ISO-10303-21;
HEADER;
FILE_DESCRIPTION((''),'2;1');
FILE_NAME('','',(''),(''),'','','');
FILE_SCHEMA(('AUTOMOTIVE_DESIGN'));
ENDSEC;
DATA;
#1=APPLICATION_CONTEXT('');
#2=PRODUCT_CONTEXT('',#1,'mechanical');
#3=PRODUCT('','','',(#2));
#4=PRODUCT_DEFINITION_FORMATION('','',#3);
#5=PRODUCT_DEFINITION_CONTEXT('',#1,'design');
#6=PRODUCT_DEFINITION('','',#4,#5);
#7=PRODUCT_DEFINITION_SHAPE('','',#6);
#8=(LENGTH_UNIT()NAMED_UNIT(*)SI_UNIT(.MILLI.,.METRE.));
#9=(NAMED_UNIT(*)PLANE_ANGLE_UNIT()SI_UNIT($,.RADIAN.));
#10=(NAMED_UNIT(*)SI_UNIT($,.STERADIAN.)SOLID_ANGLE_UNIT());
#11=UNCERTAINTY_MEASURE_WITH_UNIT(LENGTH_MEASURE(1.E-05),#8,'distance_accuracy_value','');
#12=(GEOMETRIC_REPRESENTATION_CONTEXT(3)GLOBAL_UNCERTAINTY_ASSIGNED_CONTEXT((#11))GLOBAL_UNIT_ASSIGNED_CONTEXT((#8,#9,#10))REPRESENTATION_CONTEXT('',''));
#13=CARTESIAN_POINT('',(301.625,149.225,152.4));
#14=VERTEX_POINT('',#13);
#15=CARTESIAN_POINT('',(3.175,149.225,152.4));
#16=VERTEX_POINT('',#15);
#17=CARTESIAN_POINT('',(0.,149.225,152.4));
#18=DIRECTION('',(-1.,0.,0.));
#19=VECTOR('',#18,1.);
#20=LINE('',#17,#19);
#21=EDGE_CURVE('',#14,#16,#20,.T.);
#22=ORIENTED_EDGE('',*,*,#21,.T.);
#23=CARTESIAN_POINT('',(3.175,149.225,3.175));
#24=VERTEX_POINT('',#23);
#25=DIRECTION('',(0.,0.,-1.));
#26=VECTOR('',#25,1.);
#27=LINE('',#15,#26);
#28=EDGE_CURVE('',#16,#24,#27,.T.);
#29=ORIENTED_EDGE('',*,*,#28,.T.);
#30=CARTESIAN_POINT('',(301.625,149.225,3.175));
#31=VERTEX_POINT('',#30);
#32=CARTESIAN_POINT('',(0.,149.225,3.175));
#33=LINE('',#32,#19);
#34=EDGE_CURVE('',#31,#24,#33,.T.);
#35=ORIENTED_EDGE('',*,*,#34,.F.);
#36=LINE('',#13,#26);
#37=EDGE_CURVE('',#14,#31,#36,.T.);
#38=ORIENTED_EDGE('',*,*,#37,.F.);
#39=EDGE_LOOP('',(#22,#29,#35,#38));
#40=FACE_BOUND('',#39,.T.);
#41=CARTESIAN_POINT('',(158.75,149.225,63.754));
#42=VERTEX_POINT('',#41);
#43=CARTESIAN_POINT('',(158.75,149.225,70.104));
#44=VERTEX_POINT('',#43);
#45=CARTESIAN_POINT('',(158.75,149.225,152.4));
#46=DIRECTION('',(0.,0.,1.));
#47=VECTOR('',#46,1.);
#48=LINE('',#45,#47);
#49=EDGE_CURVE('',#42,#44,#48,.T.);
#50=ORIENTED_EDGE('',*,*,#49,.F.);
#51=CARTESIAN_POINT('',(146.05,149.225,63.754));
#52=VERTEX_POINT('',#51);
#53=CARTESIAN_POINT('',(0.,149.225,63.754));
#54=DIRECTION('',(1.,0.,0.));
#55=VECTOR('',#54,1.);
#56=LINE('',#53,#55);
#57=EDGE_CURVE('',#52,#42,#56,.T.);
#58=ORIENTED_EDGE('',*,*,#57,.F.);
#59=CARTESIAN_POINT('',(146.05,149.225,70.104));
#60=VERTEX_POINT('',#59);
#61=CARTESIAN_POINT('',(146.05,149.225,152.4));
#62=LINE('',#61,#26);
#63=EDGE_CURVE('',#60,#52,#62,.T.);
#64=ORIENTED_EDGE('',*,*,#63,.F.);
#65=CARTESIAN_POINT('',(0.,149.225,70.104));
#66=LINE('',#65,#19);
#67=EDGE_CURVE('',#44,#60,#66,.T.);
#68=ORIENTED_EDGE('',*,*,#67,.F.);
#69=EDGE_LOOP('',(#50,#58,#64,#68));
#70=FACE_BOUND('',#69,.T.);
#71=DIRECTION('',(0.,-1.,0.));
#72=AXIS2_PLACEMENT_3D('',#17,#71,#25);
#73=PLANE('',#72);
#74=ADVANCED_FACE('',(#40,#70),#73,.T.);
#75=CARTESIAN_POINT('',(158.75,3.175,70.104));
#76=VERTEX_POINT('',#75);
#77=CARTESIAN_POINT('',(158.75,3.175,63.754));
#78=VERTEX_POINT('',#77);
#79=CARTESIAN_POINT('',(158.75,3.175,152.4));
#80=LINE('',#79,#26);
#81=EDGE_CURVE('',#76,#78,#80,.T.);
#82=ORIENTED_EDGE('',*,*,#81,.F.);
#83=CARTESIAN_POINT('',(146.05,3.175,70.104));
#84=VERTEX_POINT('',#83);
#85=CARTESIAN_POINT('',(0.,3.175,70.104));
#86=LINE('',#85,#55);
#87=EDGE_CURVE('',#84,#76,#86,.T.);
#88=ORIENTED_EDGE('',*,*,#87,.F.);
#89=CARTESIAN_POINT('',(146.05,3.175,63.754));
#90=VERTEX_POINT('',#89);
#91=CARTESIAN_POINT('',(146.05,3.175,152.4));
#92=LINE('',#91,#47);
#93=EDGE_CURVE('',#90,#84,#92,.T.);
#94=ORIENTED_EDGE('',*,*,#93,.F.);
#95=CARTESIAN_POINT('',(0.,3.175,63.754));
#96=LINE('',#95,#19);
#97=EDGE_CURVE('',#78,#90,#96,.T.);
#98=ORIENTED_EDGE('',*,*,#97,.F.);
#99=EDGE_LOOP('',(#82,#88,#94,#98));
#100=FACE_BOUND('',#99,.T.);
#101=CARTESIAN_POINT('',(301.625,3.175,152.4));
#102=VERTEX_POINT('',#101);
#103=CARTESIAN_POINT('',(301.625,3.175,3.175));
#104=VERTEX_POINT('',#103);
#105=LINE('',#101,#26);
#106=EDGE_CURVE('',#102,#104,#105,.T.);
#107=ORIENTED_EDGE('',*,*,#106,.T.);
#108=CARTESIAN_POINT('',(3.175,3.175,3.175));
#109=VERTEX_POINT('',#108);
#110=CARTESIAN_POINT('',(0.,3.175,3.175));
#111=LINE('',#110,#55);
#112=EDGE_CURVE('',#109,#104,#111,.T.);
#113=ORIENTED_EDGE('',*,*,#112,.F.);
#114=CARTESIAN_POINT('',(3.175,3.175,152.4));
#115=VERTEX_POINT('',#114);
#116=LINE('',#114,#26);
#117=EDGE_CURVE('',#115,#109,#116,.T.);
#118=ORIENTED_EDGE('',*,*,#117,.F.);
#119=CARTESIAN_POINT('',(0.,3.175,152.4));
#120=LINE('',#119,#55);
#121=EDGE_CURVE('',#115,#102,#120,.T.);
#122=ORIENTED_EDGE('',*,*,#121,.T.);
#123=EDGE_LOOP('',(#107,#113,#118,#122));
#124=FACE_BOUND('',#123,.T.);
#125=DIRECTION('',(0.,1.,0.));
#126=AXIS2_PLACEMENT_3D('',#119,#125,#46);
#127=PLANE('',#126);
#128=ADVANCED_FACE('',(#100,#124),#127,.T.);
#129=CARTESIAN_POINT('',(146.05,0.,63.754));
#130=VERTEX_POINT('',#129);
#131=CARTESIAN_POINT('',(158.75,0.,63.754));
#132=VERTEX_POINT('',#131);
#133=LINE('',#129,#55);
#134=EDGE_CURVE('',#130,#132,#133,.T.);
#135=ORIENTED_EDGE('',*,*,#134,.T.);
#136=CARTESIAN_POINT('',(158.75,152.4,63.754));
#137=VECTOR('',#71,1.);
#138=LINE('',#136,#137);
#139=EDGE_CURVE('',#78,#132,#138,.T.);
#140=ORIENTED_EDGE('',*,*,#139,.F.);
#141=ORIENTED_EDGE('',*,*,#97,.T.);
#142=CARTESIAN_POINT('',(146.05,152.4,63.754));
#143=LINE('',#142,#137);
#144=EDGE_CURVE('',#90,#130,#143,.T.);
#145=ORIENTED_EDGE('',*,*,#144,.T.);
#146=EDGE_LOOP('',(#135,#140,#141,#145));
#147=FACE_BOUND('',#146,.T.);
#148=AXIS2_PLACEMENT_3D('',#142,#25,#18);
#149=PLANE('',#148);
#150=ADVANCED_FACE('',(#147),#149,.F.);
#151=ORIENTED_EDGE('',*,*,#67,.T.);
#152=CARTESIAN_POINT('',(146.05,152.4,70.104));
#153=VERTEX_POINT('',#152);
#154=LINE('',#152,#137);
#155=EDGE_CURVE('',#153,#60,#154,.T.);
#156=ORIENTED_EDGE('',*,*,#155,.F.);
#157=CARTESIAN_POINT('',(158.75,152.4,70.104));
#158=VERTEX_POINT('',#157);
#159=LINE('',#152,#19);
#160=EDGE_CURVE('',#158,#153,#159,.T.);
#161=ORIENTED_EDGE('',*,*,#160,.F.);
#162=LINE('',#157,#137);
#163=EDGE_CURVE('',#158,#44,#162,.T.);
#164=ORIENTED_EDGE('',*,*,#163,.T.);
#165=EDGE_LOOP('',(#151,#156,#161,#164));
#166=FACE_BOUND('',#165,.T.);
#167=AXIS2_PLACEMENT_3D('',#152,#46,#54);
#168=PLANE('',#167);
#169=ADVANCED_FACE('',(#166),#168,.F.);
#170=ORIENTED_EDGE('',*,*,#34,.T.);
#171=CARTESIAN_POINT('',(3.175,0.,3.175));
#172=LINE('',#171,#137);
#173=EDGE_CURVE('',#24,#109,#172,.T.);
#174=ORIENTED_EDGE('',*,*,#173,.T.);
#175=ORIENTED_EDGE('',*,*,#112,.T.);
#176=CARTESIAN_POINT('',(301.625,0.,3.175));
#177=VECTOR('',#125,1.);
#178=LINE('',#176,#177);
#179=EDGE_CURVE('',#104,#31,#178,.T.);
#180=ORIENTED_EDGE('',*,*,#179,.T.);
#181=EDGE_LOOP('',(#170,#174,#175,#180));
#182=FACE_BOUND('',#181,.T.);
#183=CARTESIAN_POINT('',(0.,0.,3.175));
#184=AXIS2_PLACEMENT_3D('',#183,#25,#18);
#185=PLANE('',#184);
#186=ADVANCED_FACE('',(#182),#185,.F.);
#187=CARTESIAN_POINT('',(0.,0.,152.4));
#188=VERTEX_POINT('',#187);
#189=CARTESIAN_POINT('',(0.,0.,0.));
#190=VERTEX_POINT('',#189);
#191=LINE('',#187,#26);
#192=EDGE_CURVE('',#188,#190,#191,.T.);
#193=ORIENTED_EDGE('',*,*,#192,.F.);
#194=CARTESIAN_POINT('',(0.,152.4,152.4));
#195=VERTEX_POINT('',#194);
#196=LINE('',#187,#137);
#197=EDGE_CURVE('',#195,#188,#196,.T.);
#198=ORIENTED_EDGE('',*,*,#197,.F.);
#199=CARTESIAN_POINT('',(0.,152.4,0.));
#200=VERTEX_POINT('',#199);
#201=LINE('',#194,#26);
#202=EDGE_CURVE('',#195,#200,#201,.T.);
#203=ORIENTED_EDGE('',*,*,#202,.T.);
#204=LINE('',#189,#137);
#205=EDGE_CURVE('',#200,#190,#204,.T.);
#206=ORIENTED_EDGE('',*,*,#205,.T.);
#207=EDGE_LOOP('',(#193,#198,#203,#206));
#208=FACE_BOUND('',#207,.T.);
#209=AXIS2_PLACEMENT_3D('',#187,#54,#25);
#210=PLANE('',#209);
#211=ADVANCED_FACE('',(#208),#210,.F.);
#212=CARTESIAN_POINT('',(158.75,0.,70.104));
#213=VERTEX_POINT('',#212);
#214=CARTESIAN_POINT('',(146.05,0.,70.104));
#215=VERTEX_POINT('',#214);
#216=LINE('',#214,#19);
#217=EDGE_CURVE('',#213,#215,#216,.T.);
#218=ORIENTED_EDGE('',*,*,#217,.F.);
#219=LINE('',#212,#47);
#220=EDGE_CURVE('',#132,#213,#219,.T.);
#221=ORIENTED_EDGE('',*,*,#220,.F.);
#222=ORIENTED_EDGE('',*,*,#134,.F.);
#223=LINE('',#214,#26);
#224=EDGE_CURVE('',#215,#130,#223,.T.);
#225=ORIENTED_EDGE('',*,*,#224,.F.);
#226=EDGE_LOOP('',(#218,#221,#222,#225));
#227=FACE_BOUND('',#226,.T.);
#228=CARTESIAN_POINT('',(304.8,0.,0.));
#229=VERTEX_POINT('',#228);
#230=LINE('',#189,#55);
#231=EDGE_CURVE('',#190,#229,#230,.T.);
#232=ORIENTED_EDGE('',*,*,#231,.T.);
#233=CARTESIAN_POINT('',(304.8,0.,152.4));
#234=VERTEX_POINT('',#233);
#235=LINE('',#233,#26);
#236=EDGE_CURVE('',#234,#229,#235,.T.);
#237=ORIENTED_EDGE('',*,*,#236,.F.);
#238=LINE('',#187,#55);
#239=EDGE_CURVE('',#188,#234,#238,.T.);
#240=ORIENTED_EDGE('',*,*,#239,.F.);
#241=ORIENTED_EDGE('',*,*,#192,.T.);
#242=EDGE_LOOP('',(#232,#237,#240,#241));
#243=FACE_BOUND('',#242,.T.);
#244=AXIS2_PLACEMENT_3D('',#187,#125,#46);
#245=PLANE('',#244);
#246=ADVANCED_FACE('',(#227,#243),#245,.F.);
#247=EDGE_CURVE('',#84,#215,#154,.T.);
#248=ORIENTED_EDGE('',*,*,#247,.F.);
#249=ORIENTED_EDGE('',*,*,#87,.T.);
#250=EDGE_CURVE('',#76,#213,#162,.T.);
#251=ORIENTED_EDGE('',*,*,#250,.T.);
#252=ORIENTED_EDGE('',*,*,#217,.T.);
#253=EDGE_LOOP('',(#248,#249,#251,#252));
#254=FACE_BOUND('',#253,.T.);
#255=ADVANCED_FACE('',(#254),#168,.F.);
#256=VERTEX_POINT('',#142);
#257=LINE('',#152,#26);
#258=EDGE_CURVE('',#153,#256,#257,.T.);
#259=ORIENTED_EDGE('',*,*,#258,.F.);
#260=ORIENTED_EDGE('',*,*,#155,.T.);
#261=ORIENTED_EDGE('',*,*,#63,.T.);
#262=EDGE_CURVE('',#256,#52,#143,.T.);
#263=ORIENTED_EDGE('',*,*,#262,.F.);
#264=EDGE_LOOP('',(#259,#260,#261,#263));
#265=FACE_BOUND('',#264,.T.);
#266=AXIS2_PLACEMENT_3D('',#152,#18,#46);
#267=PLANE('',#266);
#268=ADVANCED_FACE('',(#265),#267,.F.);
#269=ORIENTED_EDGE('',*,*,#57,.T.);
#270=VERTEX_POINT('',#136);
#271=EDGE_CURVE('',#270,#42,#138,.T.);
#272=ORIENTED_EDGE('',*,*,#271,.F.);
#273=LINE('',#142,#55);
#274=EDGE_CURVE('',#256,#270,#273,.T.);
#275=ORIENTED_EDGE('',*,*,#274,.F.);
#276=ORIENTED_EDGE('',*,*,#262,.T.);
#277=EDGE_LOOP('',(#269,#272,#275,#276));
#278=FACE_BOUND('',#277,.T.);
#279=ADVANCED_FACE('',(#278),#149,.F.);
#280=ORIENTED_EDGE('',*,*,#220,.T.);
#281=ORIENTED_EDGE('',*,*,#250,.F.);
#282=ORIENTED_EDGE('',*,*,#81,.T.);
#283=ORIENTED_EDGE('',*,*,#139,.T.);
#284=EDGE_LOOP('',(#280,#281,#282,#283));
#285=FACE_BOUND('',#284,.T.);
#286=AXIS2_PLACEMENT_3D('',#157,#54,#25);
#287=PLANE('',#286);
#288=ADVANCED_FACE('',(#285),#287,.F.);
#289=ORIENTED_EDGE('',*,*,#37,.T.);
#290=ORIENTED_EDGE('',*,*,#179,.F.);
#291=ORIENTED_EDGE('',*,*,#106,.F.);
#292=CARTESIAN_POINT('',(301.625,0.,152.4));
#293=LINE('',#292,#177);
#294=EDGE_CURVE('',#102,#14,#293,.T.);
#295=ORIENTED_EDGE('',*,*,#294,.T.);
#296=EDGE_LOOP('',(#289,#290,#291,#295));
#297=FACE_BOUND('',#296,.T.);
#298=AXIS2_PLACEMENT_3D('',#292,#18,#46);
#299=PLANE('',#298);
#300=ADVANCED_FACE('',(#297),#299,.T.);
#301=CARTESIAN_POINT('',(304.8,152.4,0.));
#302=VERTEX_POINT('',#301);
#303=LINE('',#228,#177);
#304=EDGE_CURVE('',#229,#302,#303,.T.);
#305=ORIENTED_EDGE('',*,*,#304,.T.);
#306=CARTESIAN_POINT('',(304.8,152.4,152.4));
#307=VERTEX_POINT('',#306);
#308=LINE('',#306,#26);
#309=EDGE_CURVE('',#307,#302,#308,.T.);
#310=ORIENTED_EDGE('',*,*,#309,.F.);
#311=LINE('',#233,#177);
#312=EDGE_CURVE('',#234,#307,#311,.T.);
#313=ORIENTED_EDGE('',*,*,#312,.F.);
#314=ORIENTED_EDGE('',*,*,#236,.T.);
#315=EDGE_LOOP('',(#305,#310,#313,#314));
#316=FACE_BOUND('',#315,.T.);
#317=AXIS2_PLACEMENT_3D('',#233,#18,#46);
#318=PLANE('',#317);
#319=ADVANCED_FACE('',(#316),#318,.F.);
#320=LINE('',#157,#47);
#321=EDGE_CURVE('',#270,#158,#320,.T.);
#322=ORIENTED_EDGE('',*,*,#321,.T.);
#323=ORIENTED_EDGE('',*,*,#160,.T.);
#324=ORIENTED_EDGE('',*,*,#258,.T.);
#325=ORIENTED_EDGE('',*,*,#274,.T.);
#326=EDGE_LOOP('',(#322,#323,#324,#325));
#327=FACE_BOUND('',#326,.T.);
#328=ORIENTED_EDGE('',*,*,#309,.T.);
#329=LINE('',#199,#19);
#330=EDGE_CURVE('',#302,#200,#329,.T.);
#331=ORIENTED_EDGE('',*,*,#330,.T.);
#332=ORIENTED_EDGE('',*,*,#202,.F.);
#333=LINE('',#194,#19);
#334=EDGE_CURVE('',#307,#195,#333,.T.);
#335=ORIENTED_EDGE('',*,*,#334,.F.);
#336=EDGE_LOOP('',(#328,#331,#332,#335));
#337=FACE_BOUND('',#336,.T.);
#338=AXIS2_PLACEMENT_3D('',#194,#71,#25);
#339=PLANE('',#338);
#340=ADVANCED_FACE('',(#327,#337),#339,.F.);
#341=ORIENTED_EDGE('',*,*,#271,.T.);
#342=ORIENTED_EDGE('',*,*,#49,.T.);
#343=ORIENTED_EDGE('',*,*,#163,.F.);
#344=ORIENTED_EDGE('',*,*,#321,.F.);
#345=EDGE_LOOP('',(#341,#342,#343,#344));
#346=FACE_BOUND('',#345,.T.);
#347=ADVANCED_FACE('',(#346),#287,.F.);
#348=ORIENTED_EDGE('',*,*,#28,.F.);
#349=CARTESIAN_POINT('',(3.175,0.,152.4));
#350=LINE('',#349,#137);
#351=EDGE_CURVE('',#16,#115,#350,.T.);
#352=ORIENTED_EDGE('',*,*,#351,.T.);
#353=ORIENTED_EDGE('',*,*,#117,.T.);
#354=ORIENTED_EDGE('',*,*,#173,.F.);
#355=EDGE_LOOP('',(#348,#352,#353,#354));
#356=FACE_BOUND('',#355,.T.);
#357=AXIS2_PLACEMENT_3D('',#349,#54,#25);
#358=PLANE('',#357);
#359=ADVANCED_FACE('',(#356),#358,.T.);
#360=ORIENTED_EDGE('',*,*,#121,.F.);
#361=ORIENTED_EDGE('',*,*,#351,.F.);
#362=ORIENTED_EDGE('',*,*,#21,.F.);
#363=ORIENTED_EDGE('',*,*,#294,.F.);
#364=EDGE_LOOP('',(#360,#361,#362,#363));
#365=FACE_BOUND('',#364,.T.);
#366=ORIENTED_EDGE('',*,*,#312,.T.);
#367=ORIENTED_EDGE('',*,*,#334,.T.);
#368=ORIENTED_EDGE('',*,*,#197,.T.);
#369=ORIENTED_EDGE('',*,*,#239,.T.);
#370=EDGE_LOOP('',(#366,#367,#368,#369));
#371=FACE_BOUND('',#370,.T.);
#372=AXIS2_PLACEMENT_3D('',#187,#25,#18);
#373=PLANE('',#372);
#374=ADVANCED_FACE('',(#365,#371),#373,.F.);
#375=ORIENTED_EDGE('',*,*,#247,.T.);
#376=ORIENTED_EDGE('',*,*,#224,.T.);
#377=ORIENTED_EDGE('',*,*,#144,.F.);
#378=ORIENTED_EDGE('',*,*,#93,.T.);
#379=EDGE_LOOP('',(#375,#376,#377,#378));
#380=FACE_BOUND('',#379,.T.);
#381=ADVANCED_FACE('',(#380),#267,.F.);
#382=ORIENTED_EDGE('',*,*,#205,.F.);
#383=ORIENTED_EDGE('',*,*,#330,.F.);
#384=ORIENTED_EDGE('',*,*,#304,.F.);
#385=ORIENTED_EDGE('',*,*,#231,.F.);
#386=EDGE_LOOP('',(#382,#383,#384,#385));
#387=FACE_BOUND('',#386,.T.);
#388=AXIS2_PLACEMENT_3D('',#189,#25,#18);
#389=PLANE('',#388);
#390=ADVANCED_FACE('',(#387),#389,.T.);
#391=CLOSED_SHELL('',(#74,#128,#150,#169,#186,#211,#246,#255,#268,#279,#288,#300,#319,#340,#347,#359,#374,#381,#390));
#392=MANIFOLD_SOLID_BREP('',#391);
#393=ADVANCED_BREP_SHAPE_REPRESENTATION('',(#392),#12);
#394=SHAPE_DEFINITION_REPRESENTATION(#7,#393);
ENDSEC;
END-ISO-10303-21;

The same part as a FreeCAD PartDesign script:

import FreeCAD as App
import Part
import Sketcher

V = App.Vector
Q = App.Units.Quantity


def faces_at(feature, points):
    """Names of the faces that lie closest to the given points."""
    faces = feature.Shape.Faces
    near = lambda p: min(range(len(faces)), key=lambda i: faces[i].distToShape(Part.Vertex(*p))[0])
    return sorted({f"Face{near(p) + 1}" for p in points})


def add_polygon(sketch, points):
    """Adds a closed chain of lines whose ends are joined by coincident constraints."""
    first, n = sketch.GeometryCount, len(points)
    for a, b in zip(points, points[1:] + points[:1]):
        sketch.addGeometry(Part.LineSegment(App.Vector(*a, 0), App.Vector(*b, 0)), False)
    for i in range(n):
        sketch.addConstraint(Sketcher.Constraint("Coincident", first + i, 2, first + (i + 1) % n, 1))

doc = App.newDocument("Part")
body = doc.addObject("PartDesign::Body", "Body")

# Sketch on XY plane
sketch1 = body.newObject("Sketcher::SketchObject", "Sketch")
sketch1.AttachmentSupport = (doc.getObject("XY_Plane"), [""])
sketch1.MapMode = "FlatFace"
add_polygon(sketch1, [(0, 152), (0, 0), (305, 0), (305, 152)])  # lines 0-3
sketch1.addConstraint([
    Sketcher.Constraint("Vertical", 0),
    Sketcher.Constraint("Horizontal", 1),
    Sketcher.Constraint("Vertical", 2),
    Sketcher.Constraint("Horizontal", 3),
    Sketcher.Constraint("Coincident", 0, 2, -1, 1),
    Sketcher.Constraint("DistanceX", 1, 1, 1, 2, Q("12 in")),
    Sketcher.Constraint("DistanceY", 0, 2, 0, 1, Q("6 in")),
])
pad1 = body.newObject("PartDesign::Pad", "Pad")
pad1.Profile = sketch1
pad1.Length = Q("6 in")
doc.recompute()

thickness = body.newObject("PartDesign::Thickness", "Thickness")
thickness.Base = (pad1, faces_at(pad1, [(152.4, 76.2, 152.4)]))
thickness.Value = Q("0.125 in")
thickness.Reversed = True
thickness.Join = "Intersection"

# Sketch on XZ plane
sketch2 = body.newObject("Sketcher::SketchObject", "Sketch001")
sketch2.AttachmentSupport = (doc.getObject("XZ_Plane"), [""])
sketch2.MapMode = "FlatFace"
add_polygon(sketch2, [(146, 70), (146, 64), (159, 64), (159, 70)])  # lines 0-3
sketch2.addConstraint([
    Sketcher.Constraint("Vertical", 0),
    Sketcher.Constraint("Horizontal", 1),
    Sketcher.Constraint("Vertical", 2),
    Sketcher.Constraint("Horizontal", 3),
    Sketcher.Constraint("DistanceX", 1, 1, 1, 2, Q("0.5 in")),
    Sketcher.Constraint("DistanceY", 0, 2, 0, 1, Q("0.25 in")),
    Sketcher.Constraint("DistanceX", -1, 1, 0, 2, Q("5.75 in")),
    Sketcher.Constraint("DistanceY", -1, 1, 0, 2, Q("2.51 in")),
])
pocket1 = body.newObject("PartDesign::Pocket", "Pocket")
pocket1.Profile = sketch2
pocket1.Type = "ThroughAll"

doc.recompute()
